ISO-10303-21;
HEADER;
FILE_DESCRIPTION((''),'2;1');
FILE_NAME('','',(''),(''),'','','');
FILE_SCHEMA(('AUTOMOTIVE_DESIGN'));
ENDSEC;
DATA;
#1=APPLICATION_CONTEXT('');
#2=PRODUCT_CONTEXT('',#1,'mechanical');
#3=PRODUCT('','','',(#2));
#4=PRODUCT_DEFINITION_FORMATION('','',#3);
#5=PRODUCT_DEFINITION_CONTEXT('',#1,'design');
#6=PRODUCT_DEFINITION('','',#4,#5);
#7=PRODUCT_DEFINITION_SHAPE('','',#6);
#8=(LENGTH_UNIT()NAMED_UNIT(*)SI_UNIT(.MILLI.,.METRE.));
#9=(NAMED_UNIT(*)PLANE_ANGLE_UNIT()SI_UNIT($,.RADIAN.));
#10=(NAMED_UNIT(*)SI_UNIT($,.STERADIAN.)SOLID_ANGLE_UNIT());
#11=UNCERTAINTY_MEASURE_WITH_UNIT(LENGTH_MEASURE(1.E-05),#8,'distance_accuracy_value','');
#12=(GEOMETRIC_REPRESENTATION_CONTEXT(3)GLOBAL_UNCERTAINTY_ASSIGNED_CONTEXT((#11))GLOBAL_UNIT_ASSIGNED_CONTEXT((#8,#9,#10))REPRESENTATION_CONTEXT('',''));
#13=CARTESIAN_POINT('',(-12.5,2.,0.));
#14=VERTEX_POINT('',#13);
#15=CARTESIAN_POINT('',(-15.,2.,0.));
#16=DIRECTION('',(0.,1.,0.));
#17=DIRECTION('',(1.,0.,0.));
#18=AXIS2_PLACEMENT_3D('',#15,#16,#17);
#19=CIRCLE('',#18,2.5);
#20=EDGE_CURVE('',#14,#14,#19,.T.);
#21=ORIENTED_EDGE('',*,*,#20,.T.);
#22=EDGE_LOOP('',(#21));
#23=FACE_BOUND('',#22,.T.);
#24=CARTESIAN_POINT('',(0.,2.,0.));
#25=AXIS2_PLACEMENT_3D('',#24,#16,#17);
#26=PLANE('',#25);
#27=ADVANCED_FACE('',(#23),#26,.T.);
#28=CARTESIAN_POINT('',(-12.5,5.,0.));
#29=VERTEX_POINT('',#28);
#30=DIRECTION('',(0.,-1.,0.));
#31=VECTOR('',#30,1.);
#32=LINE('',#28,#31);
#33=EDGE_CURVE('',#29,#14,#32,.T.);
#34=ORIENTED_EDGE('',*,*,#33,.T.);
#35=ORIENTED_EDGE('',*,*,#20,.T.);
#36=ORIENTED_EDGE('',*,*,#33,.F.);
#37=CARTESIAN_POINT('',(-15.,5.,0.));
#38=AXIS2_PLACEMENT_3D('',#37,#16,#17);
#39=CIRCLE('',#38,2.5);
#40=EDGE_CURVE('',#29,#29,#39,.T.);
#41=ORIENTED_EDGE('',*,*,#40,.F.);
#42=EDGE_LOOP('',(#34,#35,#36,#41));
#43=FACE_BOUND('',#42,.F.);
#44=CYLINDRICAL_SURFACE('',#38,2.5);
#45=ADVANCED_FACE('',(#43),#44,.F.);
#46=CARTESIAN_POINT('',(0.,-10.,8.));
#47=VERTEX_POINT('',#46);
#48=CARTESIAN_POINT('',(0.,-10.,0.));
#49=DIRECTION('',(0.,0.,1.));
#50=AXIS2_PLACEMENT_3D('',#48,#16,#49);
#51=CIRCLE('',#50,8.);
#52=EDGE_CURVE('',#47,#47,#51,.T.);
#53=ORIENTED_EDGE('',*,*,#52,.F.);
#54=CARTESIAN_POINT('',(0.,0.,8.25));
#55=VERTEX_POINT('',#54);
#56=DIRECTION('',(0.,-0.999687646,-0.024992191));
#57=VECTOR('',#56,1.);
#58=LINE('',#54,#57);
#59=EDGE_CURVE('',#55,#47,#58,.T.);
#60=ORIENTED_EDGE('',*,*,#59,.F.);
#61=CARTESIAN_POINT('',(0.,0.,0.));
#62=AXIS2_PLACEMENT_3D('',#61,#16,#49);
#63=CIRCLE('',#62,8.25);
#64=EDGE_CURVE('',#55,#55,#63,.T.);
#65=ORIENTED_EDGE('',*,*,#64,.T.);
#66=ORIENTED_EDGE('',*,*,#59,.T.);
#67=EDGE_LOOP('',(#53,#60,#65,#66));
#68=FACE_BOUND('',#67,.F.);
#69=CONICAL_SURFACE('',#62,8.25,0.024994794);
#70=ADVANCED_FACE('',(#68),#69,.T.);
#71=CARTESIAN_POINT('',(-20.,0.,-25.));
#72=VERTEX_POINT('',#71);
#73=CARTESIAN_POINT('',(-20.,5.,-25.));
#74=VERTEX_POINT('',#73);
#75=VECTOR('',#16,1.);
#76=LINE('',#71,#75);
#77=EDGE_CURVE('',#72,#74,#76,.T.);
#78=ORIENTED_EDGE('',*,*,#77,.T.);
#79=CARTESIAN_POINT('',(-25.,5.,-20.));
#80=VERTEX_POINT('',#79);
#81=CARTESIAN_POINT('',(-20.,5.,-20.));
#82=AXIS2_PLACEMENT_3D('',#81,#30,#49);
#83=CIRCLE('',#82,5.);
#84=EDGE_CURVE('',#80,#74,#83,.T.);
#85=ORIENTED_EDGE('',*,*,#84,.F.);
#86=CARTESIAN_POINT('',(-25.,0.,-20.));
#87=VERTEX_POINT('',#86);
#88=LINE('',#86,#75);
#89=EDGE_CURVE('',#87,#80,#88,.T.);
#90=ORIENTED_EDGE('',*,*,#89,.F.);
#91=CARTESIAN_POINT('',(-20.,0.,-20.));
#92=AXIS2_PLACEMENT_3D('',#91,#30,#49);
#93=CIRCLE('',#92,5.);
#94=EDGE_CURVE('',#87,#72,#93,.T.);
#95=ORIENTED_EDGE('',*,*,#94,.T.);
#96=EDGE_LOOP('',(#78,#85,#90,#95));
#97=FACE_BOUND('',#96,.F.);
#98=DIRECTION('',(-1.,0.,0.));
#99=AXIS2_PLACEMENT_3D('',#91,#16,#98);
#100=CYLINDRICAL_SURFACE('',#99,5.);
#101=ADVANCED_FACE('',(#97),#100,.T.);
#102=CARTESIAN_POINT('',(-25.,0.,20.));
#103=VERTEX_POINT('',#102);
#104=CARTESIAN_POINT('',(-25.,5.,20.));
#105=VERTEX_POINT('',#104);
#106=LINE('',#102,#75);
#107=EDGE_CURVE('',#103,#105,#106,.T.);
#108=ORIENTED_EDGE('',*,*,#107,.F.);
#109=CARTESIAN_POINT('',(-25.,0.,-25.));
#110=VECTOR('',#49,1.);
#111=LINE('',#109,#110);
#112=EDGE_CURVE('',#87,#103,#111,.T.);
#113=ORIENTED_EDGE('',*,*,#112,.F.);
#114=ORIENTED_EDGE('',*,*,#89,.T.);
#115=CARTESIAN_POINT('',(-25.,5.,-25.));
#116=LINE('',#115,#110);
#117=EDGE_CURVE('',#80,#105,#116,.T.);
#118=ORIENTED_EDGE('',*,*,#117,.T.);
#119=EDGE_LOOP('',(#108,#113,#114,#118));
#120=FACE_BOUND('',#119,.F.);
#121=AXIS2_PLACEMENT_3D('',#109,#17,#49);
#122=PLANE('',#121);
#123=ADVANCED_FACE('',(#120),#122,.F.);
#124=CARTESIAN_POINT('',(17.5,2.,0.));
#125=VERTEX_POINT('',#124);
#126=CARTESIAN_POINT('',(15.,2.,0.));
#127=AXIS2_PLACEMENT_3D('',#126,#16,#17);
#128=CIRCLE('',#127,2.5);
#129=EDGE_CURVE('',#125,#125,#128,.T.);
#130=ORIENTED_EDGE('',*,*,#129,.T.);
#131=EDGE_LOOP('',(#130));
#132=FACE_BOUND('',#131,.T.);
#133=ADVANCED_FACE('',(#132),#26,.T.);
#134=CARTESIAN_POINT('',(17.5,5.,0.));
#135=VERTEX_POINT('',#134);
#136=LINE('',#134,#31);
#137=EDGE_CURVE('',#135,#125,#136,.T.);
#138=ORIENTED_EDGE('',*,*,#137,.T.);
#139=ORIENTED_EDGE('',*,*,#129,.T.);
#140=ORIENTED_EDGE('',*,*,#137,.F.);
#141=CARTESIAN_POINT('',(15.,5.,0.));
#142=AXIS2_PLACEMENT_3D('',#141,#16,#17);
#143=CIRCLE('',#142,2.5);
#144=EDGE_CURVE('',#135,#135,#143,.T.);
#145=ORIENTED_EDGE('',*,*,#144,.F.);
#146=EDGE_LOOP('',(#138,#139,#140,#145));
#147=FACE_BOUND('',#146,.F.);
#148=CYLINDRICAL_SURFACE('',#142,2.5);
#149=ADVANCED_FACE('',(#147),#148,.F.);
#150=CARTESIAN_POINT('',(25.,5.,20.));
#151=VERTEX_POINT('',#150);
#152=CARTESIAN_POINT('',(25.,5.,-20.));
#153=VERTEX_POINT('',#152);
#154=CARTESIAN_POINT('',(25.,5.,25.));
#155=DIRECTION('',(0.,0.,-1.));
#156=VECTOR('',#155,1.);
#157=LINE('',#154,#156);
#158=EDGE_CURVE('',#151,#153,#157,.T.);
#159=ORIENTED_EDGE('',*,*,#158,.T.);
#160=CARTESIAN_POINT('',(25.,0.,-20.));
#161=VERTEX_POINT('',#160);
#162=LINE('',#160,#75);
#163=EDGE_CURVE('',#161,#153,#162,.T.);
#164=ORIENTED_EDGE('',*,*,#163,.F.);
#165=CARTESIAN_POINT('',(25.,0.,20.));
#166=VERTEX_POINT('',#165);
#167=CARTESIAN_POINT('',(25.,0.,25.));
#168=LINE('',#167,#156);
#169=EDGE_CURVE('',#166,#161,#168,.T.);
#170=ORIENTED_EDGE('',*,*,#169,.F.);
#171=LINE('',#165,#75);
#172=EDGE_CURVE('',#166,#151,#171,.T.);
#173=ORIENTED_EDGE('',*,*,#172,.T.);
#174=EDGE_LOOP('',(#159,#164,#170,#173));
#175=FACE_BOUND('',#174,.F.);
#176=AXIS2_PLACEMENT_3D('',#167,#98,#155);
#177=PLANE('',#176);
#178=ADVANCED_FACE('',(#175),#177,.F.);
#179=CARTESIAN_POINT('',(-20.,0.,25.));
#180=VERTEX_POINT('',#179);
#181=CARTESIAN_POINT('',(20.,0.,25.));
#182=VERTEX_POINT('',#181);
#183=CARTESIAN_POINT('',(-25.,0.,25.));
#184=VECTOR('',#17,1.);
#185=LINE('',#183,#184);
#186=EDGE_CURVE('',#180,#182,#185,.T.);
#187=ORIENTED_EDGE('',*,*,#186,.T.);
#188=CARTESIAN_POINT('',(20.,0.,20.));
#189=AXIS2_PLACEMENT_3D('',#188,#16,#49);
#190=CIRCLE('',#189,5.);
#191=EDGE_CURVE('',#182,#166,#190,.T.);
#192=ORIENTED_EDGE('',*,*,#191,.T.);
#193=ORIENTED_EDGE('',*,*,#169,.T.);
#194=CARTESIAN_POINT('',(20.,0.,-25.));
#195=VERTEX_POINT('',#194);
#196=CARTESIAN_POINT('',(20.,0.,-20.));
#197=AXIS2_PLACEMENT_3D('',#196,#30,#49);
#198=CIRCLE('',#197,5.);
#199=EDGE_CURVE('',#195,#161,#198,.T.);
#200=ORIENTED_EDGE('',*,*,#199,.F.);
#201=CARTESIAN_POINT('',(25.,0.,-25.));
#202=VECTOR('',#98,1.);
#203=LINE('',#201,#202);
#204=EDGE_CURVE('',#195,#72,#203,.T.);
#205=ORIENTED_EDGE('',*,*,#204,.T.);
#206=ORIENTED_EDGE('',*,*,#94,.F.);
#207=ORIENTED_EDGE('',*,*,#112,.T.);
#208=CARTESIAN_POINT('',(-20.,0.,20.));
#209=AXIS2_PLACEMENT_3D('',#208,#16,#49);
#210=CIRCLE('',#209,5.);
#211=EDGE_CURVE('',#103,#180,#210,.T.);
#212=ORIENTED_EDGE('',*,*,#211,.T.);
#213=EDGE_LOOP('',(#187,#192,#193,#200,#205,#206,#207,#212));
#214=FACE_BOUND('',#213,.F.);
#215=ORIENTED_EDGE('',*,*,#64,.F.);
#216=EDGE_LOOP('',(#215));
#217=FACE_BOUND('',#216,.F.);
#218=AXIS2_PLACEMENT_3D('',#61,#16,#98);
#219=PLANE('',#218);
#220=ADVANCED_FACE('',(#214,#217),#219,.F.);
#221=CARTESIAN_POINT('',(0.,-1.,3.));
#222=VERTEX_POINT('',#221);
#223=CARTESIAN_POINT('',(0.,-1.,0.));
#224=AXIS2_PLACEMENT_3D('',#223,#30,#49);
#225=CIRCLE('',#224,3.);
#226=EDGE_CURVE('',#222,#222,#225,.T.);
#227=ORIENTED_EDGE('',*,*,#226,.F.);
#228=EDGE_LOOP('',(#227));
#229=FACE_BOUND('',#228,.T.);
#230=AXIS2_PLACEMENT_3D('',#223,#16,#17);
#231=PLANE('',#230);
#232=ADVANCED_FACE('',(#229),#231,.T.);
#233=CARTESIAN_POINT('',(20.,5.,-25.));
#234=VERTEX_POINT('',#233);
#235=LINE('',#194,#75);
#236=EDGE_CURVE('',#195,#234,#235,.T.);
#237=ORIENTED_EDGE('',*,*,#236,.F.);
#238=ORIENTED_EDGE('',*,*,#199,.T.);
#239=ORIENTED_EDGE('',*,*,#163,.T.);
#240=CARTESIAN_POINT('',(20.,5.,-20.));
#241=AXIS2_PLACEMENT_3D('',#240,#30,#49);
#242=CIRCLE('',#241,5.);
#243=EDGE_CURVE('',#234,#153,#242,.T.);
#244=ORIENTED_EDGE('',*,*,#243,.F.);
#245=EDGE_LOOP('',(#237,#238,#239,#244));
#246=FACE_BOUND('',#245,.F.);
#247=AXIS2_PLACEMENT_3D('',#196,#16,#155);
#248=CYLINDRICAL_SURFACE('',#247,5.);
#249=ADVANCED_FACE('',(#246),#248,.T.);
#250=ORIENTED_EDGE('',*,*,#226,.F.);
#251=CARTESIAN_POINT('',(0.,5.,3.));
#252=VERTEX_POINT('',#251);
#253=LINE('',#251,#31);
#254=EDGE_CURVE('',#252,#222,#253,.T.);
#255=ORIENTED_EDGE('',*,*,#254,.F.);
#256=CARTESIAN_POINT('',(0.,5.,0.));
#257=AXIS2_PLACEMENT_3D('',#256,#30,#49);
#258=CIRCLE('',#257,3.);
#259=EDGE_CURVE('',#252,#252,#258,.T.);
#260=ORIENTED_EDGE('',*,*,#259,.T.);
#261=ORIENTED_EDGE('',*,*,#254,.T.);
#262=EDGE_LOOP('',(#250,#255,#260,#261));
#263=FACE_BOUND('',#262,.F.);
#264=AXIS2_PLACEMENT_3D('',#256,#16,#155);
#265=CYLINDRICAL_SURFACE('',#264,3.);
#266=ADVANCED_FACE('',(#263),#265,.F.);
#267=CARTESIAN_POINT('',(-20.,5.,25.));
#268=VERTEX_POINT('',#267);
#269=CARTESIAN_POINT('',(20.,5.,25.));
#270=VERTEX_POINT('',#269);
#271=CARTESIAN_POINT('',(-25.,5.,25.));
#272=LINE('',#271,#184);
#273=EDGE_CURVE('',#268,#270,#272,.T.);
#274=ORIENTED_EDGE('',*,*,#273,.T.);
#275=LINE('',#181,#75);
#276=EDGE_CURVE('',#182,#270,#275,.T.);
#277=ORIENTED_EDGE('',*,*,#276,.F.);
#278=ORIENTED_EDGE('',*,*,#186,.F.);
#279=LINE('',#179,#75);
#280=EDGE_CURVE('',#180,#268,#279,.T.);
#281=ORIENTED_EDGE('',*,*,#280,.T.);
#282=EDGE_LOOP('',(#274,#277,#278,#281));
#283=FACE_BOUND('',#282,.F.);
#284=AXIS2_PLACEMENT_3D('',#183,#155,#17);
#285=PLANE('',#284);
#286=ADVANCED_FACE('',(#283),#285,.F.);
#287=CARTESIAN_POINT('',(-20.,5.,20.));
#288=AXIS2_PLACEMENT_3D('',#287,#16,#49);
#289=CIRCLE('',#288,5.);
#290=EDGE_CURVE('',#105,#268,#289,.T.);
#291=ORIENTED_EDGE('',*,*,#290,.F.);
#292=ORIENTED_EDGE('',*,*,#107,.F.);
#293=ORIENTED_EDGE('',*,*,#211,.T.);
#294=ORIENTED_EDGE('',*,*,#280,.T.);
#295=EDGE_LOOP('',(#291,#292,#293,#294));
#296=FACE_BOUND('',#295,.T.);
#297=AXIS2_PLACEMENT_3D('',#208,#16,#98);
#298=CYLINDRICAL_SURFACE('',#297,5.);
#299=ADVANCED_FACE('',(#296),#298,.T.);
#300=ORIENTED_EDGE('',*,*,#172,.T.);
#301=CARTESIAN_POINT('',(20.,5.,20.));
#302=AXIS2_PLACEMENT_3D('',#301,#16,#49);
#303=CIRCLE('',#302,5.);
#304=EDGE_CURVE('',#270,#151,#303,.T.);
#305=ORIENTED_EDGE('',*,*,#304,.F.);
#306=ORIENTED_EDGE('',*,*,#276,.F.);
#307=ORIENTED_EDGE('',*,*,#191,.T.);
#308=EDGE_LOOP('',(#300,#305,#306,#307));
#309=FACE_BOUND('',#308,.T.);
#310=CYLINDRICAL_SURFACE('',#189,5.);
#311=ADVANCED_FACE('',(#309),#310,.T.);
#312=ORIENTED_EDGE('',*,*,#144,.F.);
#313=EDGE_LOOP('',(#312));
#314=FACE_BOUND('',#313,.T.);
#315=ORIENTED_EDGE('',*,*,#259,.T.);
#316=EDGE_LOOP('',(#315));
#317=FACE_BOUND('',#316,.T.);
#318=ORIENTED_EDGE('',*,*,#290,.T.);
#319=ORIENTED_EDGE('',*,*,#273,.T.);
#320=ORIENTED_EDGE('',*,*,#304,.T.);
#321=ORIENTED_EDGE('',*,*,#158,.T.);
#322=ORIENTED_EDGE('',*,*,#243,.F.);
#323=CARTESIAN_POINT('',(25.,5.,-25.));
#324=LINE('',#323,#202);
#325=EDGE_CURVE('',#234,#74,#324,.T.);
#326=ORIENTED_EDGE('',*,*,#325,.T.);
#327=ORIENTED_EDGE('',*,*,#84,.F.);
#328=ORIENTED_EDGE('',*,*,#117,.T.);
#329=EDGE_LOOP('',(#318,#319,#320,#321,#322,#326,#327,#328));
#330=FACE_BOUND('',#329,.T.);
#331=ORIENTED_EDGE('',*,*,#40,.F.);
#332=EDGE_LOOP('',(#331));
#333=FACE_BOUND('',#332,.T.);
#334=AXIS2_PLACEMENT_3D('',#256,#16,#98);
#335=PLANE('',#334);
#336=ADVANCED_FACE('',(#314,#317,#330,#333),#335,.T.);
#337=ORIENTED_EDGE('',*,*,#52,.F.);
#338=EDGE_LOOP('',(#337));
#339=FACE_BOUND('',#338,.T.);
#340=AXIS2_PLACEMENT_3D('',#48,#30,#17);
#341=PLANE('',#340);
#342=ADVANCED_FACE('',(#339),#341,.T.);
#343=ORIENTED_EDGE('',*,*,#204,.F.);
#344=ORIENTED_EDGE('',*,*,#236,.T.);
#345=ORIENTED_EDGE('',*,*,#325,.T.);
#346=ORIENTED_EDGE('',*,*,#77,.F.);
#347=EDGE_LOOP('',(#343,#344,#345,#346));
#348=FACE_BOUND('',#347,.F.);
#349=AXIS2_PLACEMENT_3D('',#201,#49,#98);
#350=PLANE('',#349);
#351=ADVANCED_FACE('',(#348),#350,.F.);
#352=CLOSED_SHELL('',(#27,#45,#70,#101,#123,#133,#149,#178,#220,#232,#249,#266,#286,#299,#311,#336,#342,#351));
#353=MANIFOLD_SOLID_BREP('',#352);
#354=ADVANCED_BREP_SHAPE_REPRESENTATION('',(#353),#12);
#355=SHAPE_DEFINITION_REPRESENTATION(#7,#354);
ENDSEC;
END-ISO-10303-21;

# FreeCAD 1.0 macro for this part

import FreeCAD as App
import Part
import Sketcher

V = App.Vector
Q = App.Units.Quantity


def edges_at(feature, points):
    """Names of the edges that pass closest to the given points."""
    edges = feature.Shape.Edges
    near = lambda p: min(range(len(edges)), key=lambda i: edges[i].distToShape(Part.Vertex(*p))[0])
    return sorted({f"Edge{near(p) + 1}" for p in points})

doc = App.newDocument("Part")
body = doc.addObject("PartDesign::Body", "Body")

# Sketch on XZ plane
sketch1 = doc.addObject("Sketcher::SketchObject", "Sketch")
body.addObject(sketch1)
sketch1.AttachmentSupport = (doc.XZ_Plane, [""])
sketch1.MapMode = "FlatFace"
sketch1.addGeometry(Part.LineSegment(V(-25, -25, 0), V(-25, 25, 0)), False)
sketch1.addGeometry(Part.LineSegment(V(-25, 25, 0), V(25, 25, 0)), False)
sketch1.addGeometry(Part.LineSegment(V(25, 25, 0), V(25, -25, 0)), False)
sketch1.addGeometry(Part.LineSegment(V(25, -25, 0), V(-25, -25, 0)), False)
sketch1.addConstraint(Sketcher.Constraint("Coincident", 0, 2, 1, 1))
sketch1.addConstraint(Sketcher.Constraint("Coincident", 1, 2, 2, 1))
sketch1.addConstraint(Sketcher.Constraint("Coincident", 2, 2, 3, 1))
sketch1.addConstraint(Sketcher.Constraint("Coincident", 3, 2, 0, 1))
sketch1.addConstraint(Sketcher.Constraint("Vertical", 0))
sketch1.addConstraint(Sketcher.Constraint("Horizontal", 1))
sketch1.addConstraint(Sketcher.Constraint("Vertical", 2))
sketch1.addConstraint(Sketcher.Constraint("Horizontal", 3))
sketch1.addConstraint(Sketcher.Constraint("Symmetric", 0, 2, 2, 2, -1, 1))
sketch1.addConstraint(Sketcher.Constraint("Equal", 3, 0))
sketch1.addConstraint(Sketcher.Constraint("DistanceX", 1, 1, 1, 2, Q("50 mm")))
pad1 = doc.addObject("PartDesign::Pad", "Pad")
body.addObject(pad1)
pad1.Profile = sketch1
pad1.Length = 5
pad1.Reversed = True

# Sketch on XZ plane
sketch2 = doc.addObject("Sketcher::SketchObject", "Sketch001")
body.addObject(sketch2)
sketch2.AttachmentSupport = (doc.XZ_Plane, [""])
sketch2.MapMode = "FlatFace"
sketch2.addGeometry(Part.Circle(V(0, 0, 0), V(0, 0, 1), 8), False)
sketch2.addConstraint(Sketcher.Constraint("Coincident", 0, 3, -1, 1))
sketch2.addConstraint(Sketcher.Constraint("Diameter", 0, Q("16 mm")))
pad2 = doc.addObject("PartDesign::Pad", "Pad001")
body.addObject(pad2)
pad2.Profile = sketch2
pad2.Length = 10

# Sketch on XZ plane
sketch3 = doc.addObject("Sketcher::SketchObject", "Sketch002")
body.addObject(sketch3)
sketch3.AttachmentSupport = (doc.XZ_Plane, [""])
sketch3.MapMode = "FlatFace"
sketch3.AttachmentOffset = App.Placement(V(0, 0, -5), App.Rotation())
sketch3.addGeometry(Part.Circle(V(0, 0, 0), V(0, 0, 1), 3), False)
sketch3.addConstraint(Sketcher.Constraint("Coincident", 0, 3, -1, 1))
sketch3.addConstraint(Sketcher.Constraint("Diameter", 0, Q("6 mm")))
pocket1 = doc.addObject("PartDesign::Pocket", "Pocket")
body.addObject(pocket1)
pocket1.Profile = sketch3
pocket1.Length = 6
pocket1.Reversed = True

# Sketch on XZ plane
sketch4 = doc.addObject("Sketcher::SketchObject", "Sketch003")
body.addObject(sketch4)
sketch4.AttachmentSupport = (doc.XZ_Plane, [""])
sketch4.MapMode = "FlatFace"
sketch4.AttachmentOffset = App.Placement(V(0, 0, -5), App.Rotation())
sketch4.addGeometry(Part.Circle(V(-15, 0, 0), V(0, 0, 1), 2.5), False)
sketch4.addGeometry(Part.Circle(V(15, 0, 0), V(0, 0, 1), 2.5), False)
sketch4.addConstraint(Sketcher.Constraint("Equal", 0, 1))
sketch4.addConstraint(Sketcher.Constraint("Symmetric", 0, 3, 1, 3, -1, 1))
sketch4.addConstraint(Sketcher.Constraint("PointOnObject", 0, 3, -1))
sketch4.addConstraint(Sketcher.Constraint("Diameter", 0, Q("5 mm")))
sketch4.addConstraint(Sketcher.Constraint("DistanceX", 0, 3, -1, 1, Q("15 mm")))
pocket2 = doc.addObject("PartDesign::Pocket", "Pocket001")
body.addObject(pocket2)
pocket2.Profile = sketch4
pocket2.Length = 3
pocket2.Reversed = True
doc.recompute()

fillet = doc.addObject("PartDesign::Fillet", "Fillet")
body.addObject(fillet)
fillet.Base = (pocket2, edges_at(pocket2, [
    (25, 2.5, 25),
    (25, 2.5, -25),
    (-25, 2.5, -25),
    (-25, 2.5, 25),
]))
fillet.Radius = 5

# Sketch on YZ plane
sketch5 = doc.addObject("Sketcher::SketchObject", "Sketch004")
body.addObject(sketch5)
sketch5.AttachmentSupport = (doc.YZ_Plane, [""])
sketch5.MapMode = "FlatFace"
sketch5.addGeometry(Part.LineSegment(V(-10, 8, 0), V(0, 8, 0)), False)
sketch5.addGeometry(Part.LineSegment(V(0, 8, 0), V(0, 8.25, 0)), False)
sketch5.addGeometry(Part.LineSegment(V(0, 8.25, 0), V(-10, 8, 0)), False)
sketch5.addConstraint(Sketcher.Constraint("Coincident", 0, 2, 1, 1))
sketch5.addConstraint(Sketcher.Constraint("Coincident", 1, 2, 2, 1))
sketch5.addConstraint(Sketcher.Constraint("Coincident", 2, 2, 0, 1))
sketch5.addConstraint(Sketcher.Constraint("Horizontal", 0))
sketch5.addConstraint(Sketcher.Constraint("Vertical", 1))
sketch5.addConstraint(Sketcher.Constraint("PointOnObject", 0, 2, -2))
sketch5.addConstraint(Sketcher.Constraint("DistanceY", 1, 1, 1, 2, Q("0.25 mm")))
sketch5.addConstraint(Sketcher.Constraint("DistanceX", 0, 1, 0, 2, Q("10 mm")))
sketch5.addConstraint(Sketcher.Constraint("DistanceY", -1, 1, 0, 2, Q("8 mm")))
revolution = doc.addObject("PartDesign::Revolution", "Revolution")
body.addObject(revolution)
revolution.Profile = sketch5
revolution.ReferenceAxis = (sketch5, ["H_Axis"])
revolution.Angle = 360

doc.recompute()
